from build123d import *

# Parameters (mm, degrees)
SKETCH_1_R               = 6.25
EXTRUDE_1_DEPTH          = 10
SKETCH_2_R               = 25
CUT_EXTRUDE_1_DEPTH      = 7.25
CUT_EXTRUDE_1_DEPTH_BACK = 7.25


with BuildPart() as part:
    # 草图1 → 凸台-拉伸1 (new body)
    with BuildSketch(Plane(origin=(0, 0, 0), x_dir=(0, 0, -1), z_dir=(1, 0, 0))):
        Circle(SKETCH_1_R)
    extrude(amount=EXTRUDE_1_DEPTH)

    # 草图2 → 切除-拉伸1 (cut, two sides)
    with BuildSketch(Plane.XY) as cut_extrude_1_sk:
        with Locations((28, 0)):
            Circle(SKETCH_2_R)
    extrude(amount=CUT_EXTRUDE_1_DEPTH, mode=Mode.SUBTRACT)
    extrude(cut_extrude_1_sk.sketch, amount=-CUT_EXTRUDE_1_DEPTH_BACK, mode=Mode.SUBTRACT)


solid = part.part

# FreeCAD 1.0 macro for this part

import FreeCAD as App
import Part
import Sketcher
from FreeCAD import Vector
Q = App.Units.Quantity

doc = App.newDocument("Part")
params = doc.addObject("Spreadsheet::Sheet", "Params")
for row, (alias, value) in enumerate([
    ("sketch1_diameter", "12.5 mm"),
    ("pad1_length", "10 mm"),
    ("sketch2_diameter", "50 mm"),
], start=1):
    params.set(f"A{row}", alias)
    params.set(f"B{row}", "=" + value)
    params.setAlias(f"B{row}", alias)

body = doc.addObject("PartDesign::Body", "Body")

sketch1 = doc.addObject("Sketcher::SketchObject", "Sketch")
body.addObject(sketch1)
sketch1.AttachmentSupport = (doc.YZ_Plane, [""])
sketch1.MapMode = "FlatFace"
sketch1.addGeometry(Part.Circle(Vector(0, 0, 0), Vector(0, 0, 1), 6), False)
sketch1.addConstraint([
    Sketcher.Constraint("Coincident", 0, 3, -1, 1),
    Sketcher.Constraint("Diameter", 0, Q("12.5 mm")),
])
sketch1.setExpression("Constraints[1]", "Params.sketch1_diameter")
pad1 = doc.addObject("PartDesign::Pad", "Pad")
body.addObject(pad1)
pad1.Profile = sketch1
pad1.setExpression("Length", "Params.pad1_length")

sketch2 = doc.addObject("Sketcher::SketchObject", "Sketch001")
body.addObject(sketch2)
sketch2.AttachmentSupport = (doc.XY_Plane, [""])
sketch2.MapMode = "FlatFace"
sketch2.addGeometry(Part.Circle(Vector(28, 0, 0), Vector(0, 0, 1), 25), False)
sketch2.addConstraint([
    Sketcher.Constraint("PointOnObject", 0, 3, -1),
    Sketcher.Constraint("Diameter", 0, Q("50 mm")),
    Sketcher.Constraint("DistanceX", -1, 1, 0, 3, Q("28 mm")),
])
sketch2.setExpression("Constraints[1]", "Params.sketch2_diameter")
pocket1 = doc.addObject("PartDesign::Pocket", "Pocket")
body.addObject(pocket1)
pocket1.Profile = sketch2
pocket1.Type = "ThroughAll"
pocket1.Midplane = True

doc.recompute()
